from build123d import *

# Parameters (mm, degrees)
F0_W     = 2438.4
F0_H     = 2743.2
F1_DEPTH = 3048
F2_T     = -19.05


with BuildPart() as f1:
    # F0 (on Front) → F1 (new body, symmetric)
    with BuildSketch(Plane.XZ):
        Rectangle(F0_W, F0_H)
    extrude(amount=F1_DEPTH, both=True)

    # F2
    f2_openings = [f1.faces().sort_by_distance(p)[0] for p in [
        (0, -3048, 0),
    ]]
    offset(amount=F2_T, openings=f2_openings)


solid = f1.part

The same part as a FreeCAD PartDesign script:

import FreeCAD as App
import Part
import Sketcher
Q = App.Units.Quantity


def faces_at(feature, points):
    """Names of the faces that lie closest to the given points."""
    faces = feature.Shape.Faces
    near = lambda p: min(range(len(faces)), key=lambda i: faces[i].distToShape(Part.Vertex(*p))[0])
    return sorted({f"Face{near(p) + 1}" for p in points})


def add_polygon(sketch, points):
    """Adds a closed chain of lines whose ends are joined by coincident constraints."""
    first, n = sketch.GeometryCount, len(points)
    for a, b in zip(points, points[1:] + points[:1]):
        sketch.addGeometry(Part.LineSegment(App.Vector(*a, 0), App.Vector(*b, 0)), False)
    for i in range(n):
        sketch.addConstraint(Sketcher.Constraint("Coincident", first + i, 2, first + (i + 1) % n, 1))

doc = App.newDocument("Part")
params = doc.addObject("Spreadsheet::Sheet", "Params")
for row, (alias, value) in enumerate([
    ("sketch1_width", "96 in"),
    ("sketch1_height", "108 in"),
    ("pad1_length", "240 in"),
    ("thickness_wall", "0.75 in"),
], start=1):
    params.set(f"A{row}", alias)
    params.set(f"B{row}", "=" + value)
    params.setAlias(f"B{row}", alias)

body = doc.addObject("PartDesign::Body", "Body")

# Sketch on XZ plane
sketch1 = body.newObject("Sketcher::SketchObject", "Sketch")
sketch1.AttachmentSupport = (doc.getObject("XZ_Plane"), [""])
sketch1.MapMode = "FlatFace"
add_polygon(sketch1, [(-1219.2, 1371.6), (-1219.2, -1371.6), (1219.2, -1371.6), (1219.2, 1371.6)])  # lines 0-3
sketch1.addConstraint([
    Sketcher.Constraint("Vertical", 0),
    Sketcher.Constraint("Horizontal", 1),
    Sketcher.Constraint("Vertical", 2),
    Sketcher.Constraint("Horizontal", 3),
    Sketcher.Constraint("Symmetric", 0, 2, 2, 2, -1, 1),
    Sketcher.Constraint("DistanceX", 1, 1, 1, 2, Q("96 in")),
    Sketcher.Constraint("DistanceY", 0, 2, 0, 1, Q("108 in")),
])
sketch1.setExpression("Constraints[9]", "Params.sketch1_width")
sketch1.setExpression("Constraints[10]", "Params.sketch1_height")
pad1 = body.newObject("PartDesign::Pad", "Pad")
pad1.Profile = sketch1
pad1.setExpression("Length", "Params.pad1_length")
pad1.Midplane = True
doc.recompute()

thickness = body.newObject("PartDesign::Thickness", "Thickness")
thickness.Base = (pad1, faces_at(pad1, [(0, -3048, 0)]))
thickness.setExpression("Value", "Params.thickness_wall")
thickness.Reversed = True
thickness.Join = "Arc"

doc.recompute()
